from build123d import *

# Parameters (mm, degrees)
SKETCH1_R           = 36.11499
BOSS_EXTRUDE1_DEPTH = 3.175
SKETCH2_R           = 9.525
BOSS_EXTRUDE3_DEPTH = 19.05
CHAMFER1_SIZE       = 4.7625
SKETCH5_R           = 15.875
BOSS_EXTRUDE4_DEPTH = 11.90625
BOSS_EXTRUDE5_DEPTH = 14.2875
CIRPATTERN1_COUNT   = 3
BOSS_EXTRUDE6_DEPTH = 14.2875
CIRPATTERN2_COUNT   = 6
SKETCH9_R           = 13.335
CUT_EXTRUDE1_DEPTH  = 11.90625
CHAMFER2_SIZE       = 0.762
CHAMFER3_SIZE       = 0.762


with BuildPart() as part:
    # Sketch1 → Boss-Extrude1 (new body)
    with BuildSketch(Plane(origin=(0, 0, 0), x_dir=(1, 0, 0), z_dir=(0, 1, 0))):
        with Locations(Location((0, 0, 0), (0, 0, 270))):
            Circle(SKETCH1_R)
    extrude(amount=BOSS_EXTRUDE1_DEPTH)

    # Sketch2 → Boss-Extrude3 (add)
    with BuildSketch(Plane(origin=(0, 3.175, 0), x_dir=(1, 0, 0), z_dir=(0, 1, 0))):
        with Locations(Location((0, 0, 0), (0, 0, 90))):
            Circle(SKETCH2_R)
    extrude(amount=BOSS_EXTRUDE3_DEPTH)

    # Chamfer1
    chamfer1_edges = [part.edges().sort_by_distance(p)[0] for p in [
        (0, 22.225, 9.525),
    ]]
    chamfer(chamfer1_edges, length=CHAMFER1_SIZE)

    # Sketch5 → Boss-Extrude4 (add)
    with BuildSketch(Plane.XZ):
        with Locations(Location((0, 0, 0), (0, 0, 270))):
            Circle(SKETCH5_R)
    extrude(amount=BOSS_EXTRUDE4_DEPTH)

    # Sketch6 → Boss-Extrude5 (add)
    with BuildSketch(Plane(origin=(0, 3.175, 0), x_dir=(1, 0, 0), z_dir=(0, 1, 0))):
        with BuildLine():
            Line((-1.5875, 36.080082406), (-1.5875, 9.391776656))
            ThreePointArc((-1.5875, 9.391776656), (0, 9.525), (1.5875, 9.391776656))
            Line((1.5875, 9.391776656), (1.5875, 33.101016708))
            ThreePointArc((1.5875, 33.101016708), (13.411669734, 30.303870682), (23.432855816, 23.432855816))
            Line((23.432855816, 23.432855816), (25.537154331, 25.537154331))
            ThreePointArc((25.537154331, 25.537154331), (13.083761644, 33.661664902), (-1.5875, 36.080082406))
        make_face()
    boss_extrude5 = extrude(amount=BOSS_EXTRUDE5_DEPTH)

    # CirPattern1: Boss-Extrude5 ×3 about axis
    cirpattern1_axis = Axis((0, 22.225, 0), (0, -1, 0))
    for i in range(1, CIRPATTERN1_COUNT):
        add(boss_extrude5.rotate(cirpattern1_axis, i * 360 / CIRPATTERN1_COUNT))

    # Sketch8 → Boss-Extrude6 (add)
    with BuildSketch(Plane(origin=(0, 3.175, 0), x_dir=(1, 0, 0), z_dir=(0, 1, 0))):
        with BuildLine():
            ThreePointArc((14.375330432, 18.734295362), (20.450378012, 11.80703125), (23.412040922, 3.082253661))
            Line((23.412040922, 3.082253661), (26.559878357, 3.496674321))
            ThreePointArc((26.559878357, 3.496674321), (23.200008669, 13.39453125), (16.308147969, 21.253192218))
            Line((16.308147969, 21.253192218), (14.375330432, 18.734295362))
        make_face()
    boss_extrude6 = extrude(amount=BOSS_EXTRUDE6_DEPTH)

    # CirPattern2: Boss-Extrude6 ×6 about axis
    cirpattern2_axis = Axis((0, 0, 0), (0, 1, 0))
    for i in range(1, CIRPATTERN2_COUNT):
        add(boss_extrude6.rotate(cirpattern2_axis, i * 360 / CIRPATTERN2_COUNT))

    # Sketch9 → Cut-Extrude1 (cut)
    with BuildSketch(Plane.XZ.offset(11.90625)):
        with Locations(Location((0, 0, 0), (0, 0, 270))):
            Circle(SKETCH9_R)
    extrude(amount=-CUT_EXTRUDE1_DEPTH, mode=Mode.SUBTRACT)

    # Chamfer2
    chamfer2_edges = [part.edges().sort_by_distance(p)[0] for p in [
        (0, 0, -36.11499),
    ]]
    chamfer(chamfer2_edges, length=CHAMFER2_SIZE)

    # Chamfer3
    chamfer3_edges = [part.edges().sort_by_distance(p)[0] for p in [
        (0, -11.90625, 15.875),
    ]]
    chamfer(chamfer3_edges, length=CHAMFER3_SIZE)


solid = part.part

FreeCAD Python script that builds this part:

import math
import FreeCAD as App
import Part
import Sketcher
from FreeCAD import Vector
Q = App.Units.Quantity


def edges_at(feature, points):
    """Names of the edges that pass closest to the given points."""
    edges = feature.Shape.Edges
    near = lambda p: min(range(len(edges)), key=lambda i: edges[i].distToShape(Part.Vertex(*p))[0])
    return sorted({f"Edge{near(p) + 1}" for p in points})

doc = App.newDocument("Part")
body = doc.addObject("PartDesign::Body", "Body")

# Sketch on XZ plane
sketch1 = body.newObject("Sketcher::SketchObject", "Sketch")
sketch1.AttachmentSupport = (doc.getObject("XZ_Plane"), [""])
sketch1.MapMode = "FlatFace"
sketch1.addGeometry(Part.Circle(Vector(0, 0, 0), Vector(0, 0, 1), 36), False)
sketch1.addConstraint([
    Sketcher.Constraint("Coincident", 0, 3, -1, 1),
    Sketcher.Constraint("Diameter", 0, Q("2.8437 in")),
])
pad1 = body.newObject("PartDesign::Pad", "Pad")
pad1.Profile = sketch1
pad1.Length = Q("0.125 in")
pad1.Reversed = True

# Sketch on XZ plane
sketch2 = body.newObject("Sketcher::SketchObject", "Sketch001")
sketch2.AttachmentSupport = (doc.getObject("XZ_Plane"), [""])
sketch2.MapMode = "FlatFace"
sketch2.AttachmentOffset = App.Placement(Vector(0, 0, -0.125 * 25.4), App.Rotation())
sketch2.addGeometry(Part.Circle(Vector(0, 0, 0), Vector(0, 0, 1), 10), False)
sketch2.addConstraint([
    Sketcher.Constraint("Coincident", 0, 3, -1, 1),
    Sketcher.Constraint("Diameter", 0, Q("0.75 in")),
])
pad2 = body.newObject("PartDesign::Pad", "Pad001")
pad2.Profile = sketch2
pad2.Length = Q("0.75 in")
pad2.Reversed = True
doc.recompute()

chamfer = body.newObject("PartDesign::Chamfer", "Chamfer")
chamfer.Base = (pad2, edges_at(pad2, [(0, 22.225, 9.525)]))
chamfer.Size = Q("0.1875 in")

# Sketch on XZ plane
sketch3 = body.newObject("Sketcher::SketchObject", "Sketch002")
sketch3.AttachmentSupport = (doc.getObject("XZ_Plane"), [""])
sketch3.MapMode = "FlatFace"
sketch3.addGeometry(Part.Circle(Vector(0, 0, 0), Vector(0, 0, 1), 16), False)
sketch3.addConstraint([
    Sketcher.Constraint("Coincident", 0, 3, -1, 1),
    Sketcher.Constraint("Diameter", 0, Q("1.25 in")),
])
pad3 = body.newObject("PartDesign::Pad", "Pad002")
pad3.Profile = sketch3
pad3.Length = Q("0.46875 in")

# Sketch on XZ plane
sketch4 = body.newObject("Sketcher::SketchObject", "Sketch003")
sketch4.AttachmentSupport = (doc.getObject("XZ_Plane"), [""])
sketch4.MapMode = "FlatFace"
sketch4.AttachmentOffset = App.Placement(Vector(0, 0, -0.125 * 25.4), App.Rotation())
sketch4.addGeometry([
    Part.LineSegment(Vector(-1.6, -36.1, 0), Vector(-1.6, -9.4, 0)),  # 0
    Part.ArcOfCircle(Part.Circle(Vector(0, 0, 0), Vector(0, 0, 1), 9.5), math.radians(-99.59), math.radians(-80.41)),  # 1
    Part.LineSegment(Vector(1.6, -9.4, 0), Vector(1.6, -33.1, 0)),  # 2
    Part.ArcOfCircle(Part.Circle(Vector(0, 0, 0), Vector(0, 0, 1), 33.1), math.radians(-87), math.radians(-45)),  # 3
    Part.LineSegment(Vector(23.4, -23.4, 0), Vector(25.5, -25.5, 0)),  # 4
    Part.ArcOfCircle(Part.Circle(Vector(0, 0, 0), Vector(0, 0, 1), 36.1), math.radians(-93), math.radians(-45)),  # 5
], False)
sketch4.addConstraint([
    Sketcher.Constraint("Coincident", 0, 2, 1, 1),
    Sketcher.Constraint("Coincident", 1, 2, 2, 1),
    Sketcher.Constraint("Coincident", 2, 2, 3, 1),
    Sketcher.Constraint("Coincident", 3, 2, 4, 1),
    Sketcher.Constraint("Coincident", 4, 2, 5, 2),
    Sketcher.Constraint("Coincident", 5, 1, 0, 1),
    Sketcher.Constraint("Vertical", 0),
    Sketcher.Constraint("Vertical", 2),
    Sketcher.Constraint("Coincident", 1, 3, -1, 1),
    Sketcher.Constraint("Coincident", 3, 3, -1, 1),
    Sketcher.Constraint("Coincident", 5, 3, -1, 1),
    Sketcher.Constraint("Horizontal", 0, 2, 1, 2),
    Sketcher.Constraint("Angle", 4, Q("-45 deg")),
    Sketcher.Constraint("Radius", 1, Q("0.375 in")),
    Sketcher.Constraint("DistanceX", 0, 2, -1, 1, Q("0.0625 in")),
    Sketcher.Constraint("Radius", 5, 36.11499),
    Sketcher.Constraint("Radius", 3, 33.139063),
    Sketcher.Constraint("DistanceY", 2, 2, 3, 2, 9.668161),
])
pad4 = body.newObject("PartDesign::Pad", "Pad003")
pad4.Profile = sketch4
pad4.Length = Q("0.5625 in")
pad4.Reversed = True
doc.recompute()

polarpattern = body.newObject("PartDesign::PolarPattern", "PolarPattern")
polarpattern.Originals = [pad4]
polarpattern.Axis = (doc.getObject("Y_Axis"), [""])
polarpattern.Angle = 360
polarpattern.Occurrences = 3
body.Tip = polarpattern

# Sketch on XZ plane
sketch5 = body.newObject("Sketcher::SketchObject", "Sketch004")
sketch5.AttachmentSupport = (doc.getObject("XZ_Plane"), [""])
sketch5.MapMode = "FlatFace"
sketch5.AttachmentOffset = App.Placement(Vector(0, 0, -0.125 * 25.4), App.Rotation())
sketch5.addGeometry([
    Part.ArcOfCircle(Part.Circle(Vector(0, 0, 0), Vector(0, 0, 1), 23.6), math.radians(-53), math.radians(-7)),
    Part.LineSegment(Vector(23.4, -3.1, 0), Vector(26.6, -3.5, 0)),
    Part.ArcOfCircle(Part.Circle(Vector(0, 0, 0), Vector(0, 0, 1), 26.8), math.radians(-53), math.radians(-7)),
    Part.LineSegment(Vector(16.3, -21.3, 0), Vector(14.4, -18.7, 0)),
], False)
sketch5.addConstraint([
    Sketcher.Constraint("Coincident", 0, 2, 1, 1),
    Sketcher.Constraint("Coincident", 1, 2, 2, 2),
    Sketcher.Constraint("Coincident", 2, 1, 3, 1),
    Sketcher.Constraint("Coincident", 3, 2, 0, 1),
    Sketcher.Constraint("Coincident", 0, 3, -1, 1),
    Sketcher.Constraint("Coincident", 2, 3, -1, 1),
    Sketcher.Constraint("Angle", 1, Q("-7.5 deg")),
    Sketcher.Constraint("Angle", 3, Q("127.5 deg")),
    Sketcher.Constraint("Distance", 1, Q("0.125 in")),
    Sketcher.Constraint("Radius", 0, 23.614062),
    Sketcher.Constraint("DistanceX", -1, 1, 0, 2, 23.412041),
    Sketcher.Constraint("DistanceX", -1, 1, 3, 2, 14.37533),
])
pad5 = body.newObject("PartDesign::Pad", "Pad004")
pad5.Profile = sketch5
pad5.Length = Q("0.5625 in")
pad5.Reversed = True
doc.recompute()

polarpattern2 = body.newObject("PartDesign::PolarPattern", "PolarPattern001")
polarpattern2.Originals = [pad5]
polarpattern2.Axis = (doc.getObject("Y_Axis"), [""])
polarpattern2.Angle = 360
polarpattern2.Occurrences = 6
body.Tip = polarpattern2

# Sketch on XZ plane
sketch6 = body.newObject("Sketcher::SketchObject", "Sketch005")
sketch6.AttachmentSupport = (doc.getObject("XZ_Plane"), [""])
sketch6.MapMode = "FlatFace"
sketch6.AttachmentOffset = App.Placement(Vector(0, 0, 0.46875 * 25.4), App.Rotation())
sketch6.addGeometry(Part.Circle(Vector(0, 0, 0), Vector(0, 0, 1), 13), False)
sketch6.addConstraint([
    Sketcher.Constraint("Coincident", 0, 3, -1, 1),
    Sketcher.Constraint("Diameter", 0, Q("1.05 in")),
])
pocket1 = body.newObject("PartDesign::Pocket", "Pocket")
pocket1.Profile = sketch6
pocket1.Length = Q("0.46875 in")
doc.recompute()

chamfer2 = body.newObject("PartDesign::Chamfer", "Chamfer001")
chamfer2.Base = (pocket1, edges_at(pocket1, [(0, 0, -36.115)]))
chamfer2.Size = Q("0.03 in")
doc.recompute()

chamfer3 = body.newObject("PartDesign::Chamfer", "Chamfer002")
chamfer3.Base = (chamfer2, edges_at(chamfer2, [(0, -11.906, 15.875)]))
chamfer3.Size = Q("0.03 in")

doc.recompute()
